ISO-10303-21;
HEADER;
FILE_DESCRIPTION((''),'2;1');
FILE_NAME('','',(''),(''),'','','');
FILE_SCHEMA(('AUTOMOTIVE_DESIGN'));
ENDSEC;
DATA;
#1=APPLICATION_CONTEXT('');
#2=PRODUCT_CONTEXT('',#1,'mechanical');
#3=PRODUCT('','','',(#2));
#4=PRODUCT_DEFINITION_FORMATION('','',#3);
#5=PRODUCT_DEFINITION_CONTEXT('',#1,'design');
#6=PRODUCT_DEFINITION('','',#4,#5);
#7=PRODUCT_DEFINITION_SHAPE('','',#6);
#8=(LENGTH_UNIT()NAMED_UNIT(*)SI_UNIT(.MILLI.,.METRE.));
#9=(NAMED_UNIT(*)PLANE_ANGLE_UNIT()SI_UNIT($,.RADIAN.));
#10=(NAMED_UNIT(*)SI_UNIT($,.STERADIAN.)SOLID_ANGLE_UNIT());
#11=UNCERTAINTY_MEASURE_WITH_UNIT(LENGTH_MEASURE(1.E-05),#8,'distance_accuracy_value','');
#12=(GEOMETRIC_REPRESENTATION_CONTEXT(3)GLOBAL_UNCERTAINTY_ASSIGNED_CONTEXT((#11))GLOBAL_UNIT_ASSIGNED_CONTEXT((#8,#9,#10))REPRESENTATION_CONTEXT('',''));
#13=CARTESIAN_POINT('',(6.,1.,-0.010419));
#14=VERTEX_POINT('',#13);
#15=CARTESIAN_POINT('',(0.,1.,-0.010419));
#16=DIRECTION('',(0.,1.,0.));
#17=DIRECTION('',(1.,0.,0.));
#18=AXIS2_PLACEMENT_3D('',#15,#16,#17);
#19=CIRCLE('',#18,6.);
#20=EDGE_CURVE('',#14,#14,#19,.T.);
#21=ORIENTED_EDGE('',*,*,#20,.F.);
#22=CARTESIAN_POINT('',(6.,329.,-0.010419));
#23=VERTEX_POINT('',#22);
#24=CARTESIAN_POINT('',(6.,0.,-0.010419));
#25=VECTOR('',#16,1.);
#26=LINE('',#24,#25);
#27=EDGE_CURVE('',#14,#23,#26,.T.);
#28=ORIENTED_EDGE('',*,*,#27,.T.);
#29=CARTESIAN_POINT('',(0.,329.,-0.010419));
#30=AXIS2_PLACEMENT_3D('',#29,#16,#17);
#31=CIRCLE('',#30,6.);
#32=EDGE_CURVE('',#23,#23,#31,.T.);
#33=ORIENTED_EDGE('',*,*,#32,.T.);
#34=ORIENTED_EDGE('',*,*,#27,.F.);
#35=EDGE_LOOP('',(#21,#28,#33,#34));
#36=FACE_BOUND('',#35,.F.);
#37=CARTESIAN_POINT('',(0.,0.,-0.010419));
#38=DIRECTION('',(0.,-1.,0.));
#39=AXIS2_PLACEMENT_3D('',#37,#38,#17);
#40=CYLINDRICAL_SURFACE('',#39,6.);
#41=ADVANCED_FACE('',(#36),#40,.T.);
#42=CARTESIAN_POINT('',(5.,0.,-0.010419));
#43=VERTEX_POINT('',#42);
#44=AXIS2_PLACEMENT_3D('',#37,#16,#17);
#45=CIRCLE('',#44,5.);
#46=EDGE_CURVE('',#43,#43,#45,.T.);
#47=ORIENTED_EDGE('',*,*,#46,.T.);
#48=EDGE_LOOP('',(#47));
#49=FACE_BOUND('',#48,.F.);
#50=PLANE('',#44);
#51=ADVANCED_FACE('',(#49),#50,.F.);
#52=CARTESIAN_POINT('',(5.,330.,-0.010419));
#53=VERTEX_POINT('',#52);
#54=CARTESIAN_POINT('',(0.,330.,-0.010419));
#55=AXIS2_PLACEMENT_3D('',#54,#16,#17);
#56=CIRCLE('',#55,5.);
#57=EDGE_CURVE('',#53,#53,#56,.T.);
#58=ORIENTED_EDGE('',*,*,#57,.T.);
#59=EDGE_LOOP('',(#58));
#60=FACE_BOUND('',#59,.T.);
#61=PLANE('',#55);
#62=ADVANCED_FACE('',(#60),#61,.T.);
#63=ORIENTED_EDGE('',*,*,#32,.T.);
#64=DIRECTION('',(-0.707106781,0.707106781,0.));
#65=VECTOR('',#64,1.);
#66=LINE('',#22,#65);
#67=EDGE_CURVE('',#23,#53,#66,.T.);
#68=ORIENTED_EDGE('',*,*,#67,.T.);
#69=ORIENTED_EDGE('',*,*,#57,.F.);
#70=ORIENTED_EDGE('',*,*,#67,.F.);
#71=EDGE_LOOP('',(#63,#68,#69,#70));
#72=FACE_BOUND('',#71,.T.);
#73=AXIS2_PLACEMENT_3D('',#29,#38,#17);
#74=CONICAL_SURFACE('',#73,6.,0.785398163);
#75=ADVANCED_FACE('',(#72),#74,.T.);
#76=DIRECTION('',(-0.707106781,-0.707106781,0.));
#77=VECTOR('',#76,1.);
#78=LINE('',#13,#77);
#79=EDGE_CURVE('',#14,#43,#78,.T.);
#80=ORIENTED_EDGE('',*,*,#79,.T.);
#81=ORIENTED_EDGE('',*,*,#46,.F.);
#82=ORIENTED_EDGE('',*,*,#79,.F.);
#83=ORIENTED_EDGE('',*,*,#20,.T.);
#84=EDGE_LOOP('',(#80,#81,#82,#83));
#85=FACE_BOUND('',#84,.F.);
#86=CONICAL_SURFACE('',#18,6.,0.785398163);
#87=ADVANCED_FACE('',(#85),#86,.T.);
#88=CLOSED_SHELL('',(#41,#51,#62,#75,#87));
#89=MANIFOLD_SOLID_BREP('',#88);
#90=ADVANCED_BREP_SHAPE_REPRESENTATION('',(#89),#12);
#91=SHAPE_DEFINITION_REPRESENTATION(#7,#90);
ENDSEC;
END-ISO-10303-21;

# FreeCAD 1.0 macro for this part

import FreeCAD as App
import Part
import Sketcher

V = App.Vector
Q = App.Units.Quantity


def edges_at(feature, points):
    """Names of the edges that pass closest to the given points."""
    edges = feature.Shape.Edges
    near = lambda p: min(range(len(edges)), key=lambda i: edges[i].distToShape(Part.Vertex(*p))[0])
    return sorted({f"Edge{near(p) + 1}" for p in points})

doc = App.newDocument("Part")
body = doc.addObject("PartDesign::Body", "Body")

# Sketch on XZ plane
sketch1 = body.newObject("Sketcher::SketchObject", "Sketch")
sketch1.AttachmentSupport = (doc.getObject("XZ_Plane"), [""])
sketch1.MapMode = "FlatFace"
sketch1.addGeometry(Part.Circle(V(0, 0, 0), V(0, 0, 1), 6), False)
sketch1.addConstraint([
    Sketcher.Constraint("PointOnObject", 0, 3, -2),
    Sketcher.Constraint("Diameter", 0, Q("12 mm")),
    Sketcher.Constraint("DistanceY", 0, 3, -1, 1, Q("0.010419 mm")),
])
pad1 = body.newObject("PartDesign::Pad", "Pad")
pad1.Profile = sketch1
pad1.Length = 330
pad1.Reversed = True
doc.recompute()

chamfer = body.newObject("PartDesign::Chamfer", "Chamfer")
chamfer.Base = (pad1, edges_at(pad1, [(-6, 0, -0.01), (-6, 330, -0.01)]))
chamfer.Size = 1

doc.recompute()
